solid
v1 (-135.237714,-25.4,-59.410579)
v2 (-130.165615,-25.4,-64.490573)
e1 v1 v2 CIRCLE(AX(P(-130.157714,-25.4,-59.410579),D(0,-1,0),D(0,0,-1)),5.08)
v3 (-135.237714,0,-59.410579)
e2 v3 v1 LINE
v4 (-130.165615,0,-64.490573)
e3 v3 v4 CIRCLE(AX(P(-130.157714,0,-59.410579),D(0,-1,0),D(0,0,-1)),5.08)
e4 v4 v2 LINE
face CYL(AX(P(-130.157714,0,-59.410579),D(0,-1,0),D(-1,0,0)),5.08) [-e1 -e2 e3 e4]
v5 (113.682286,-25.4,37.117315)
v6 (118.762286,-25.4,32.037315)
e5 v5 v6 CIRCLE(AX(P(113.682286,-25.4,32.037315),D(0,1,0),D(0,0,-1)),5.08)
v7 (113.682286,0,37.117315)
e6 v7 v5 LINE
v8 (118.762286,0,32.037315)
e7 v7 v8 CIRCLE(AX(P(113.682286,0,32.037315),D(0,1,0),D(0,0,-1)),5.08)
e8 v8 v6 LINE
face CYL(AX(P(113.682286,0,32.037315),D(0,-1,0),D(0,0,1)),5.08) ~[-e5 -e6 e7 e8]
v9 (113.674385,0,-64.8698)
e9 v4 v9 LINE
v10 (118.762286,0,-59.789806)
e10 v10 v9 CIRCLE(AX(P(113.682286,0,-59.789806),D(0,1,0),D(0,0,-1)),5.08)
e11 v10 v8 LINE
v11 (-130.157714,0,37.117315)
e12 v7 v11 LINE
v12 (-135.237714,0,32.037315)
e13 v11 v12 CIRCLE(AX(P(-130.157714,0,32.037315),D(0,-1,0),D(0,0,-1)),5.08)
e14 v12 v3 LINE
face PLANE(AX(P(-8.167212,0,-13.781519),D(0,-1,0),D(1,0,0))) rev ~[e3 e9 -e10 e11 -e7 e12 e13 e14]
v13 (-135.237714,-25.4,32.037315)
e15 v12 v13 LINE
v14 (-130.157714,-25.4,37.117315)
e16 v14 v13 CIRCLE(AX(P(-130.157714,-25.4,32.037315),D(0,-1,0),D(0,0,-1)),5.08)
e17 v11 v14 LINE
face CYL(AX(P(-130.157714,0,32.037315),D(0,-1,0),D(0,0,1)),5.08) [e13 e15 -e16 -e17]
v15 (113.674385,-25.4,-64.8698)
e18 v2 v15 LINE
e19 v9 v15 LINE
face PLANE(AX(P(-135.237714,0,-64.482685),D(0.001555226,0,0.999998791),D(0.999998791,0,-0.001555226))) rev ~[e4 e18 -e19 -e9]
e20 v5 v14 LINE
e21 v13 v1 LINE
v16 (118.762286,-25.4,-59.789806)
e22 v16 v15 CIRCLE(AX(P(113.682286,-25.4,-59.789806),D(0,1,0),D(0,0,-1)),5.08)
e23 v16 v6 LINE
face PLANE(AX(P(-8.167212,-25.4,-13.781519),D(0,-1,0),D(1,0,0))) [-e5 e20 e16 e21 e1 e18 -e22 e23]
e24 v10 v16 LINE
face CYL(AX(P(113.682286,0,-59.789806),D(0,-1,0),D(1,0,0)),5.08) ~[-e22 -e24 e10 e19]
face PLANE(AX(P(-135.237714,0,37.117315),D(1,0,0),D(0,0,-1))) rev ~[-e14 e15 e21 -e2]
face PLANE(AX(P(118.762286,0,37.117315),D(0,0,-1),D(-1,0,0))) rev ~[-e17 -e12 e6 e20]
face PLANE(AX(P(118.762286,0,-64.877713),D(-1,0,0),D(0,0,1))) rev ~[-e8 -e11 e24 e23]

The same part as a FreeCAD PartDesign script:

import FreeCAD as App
import Part
import Sketcher
from FreeCAD import Vector
Q = App.Units.Quantity


def edges_at(feature, points):
    """Names of the edges that pass closest to the given points."""
    edges = feature.Shape.Edges
    near = lambda p: min(range(len(edges)), key=lambda i: edges[i].distToShape(Part.Vertex(*p))[0])
    return sorted({f"Edge{near(p) + 1}" for p in points})

doc = App.newDocument("Part")
body = doc.addObject("PartDesign::Body", "Body")

sketch1 = body.newObject("Sketcher::SketchObject", "Sketch")
sketch1.AttachmentSupport = (doc.getObject("XZ_Plane"), [""])
sketch1.MapMode = "FlatFace"
sketch1.addGeometry(Part.LineSegment(Vector(119, 37, 0), Vector(-135, 37, 0)), False)
sketch1.addGeometry(Part.LineSegment(Vector(-135, 37, 0), Vector(-135, -64, 0)), False)
sketch1.addGeometry(Part.LineSegment(Vector(-135, -64, 0), Vector(119, -65, 0)), False)
sketch1.addGeometry(Part.LineSegment(Vector(119, -65, 0), Vector(119, 37, 0)), False)
sketch1.addConstraint(Sketcher.Constraint("Coincident", 0, 2, 1, 1))
sketch1.addConstraint(Sketcher.Constraint("Coincident", 1, 2, 2, 1))
sketch1.addConstraint(Sketcher.Constraint("Coincident", 2, 2, 3, 1))
sketch1.addConstraint(Sketcher.Constraint("Coincident", 3, 2, 0, 1))
sketch1.addConstraint(Sketcher.Constraint("Horizontal", 0))
sketch1.addConstraint(Sketcher.Constraint("Vertical", 1))
sketch1.addConstraint(Sketcher.Constraint("Vertical", 3))
sketch1.addConstraint(Sketcher.Constraint("DistanceX", 0, 2, 0, 1, Q("10 in")))
sketch1.addConstraint(Sketcher.Constraint("DistanceY", 1, 2, 1, 1, Q("4 in")))
sketch1.addConstraint(Sketcher.Constraint("DistanceY", 3, 1, 3, 2, 101.995028))
sketch1.addConstraint(Sketcher.Constraint("DistanceX", 0, 2, -1, 1, 135.237714))
sketch1.addConstraint(Sketcher.Constraint("DistanceY", -1, 1, 0, 2, 37.117315))
pad1 = body.newObject("PartDesign::Pad", "Pad")
pad1.Profile = sketch1
pad1.Length = Q("1 in")
doc.recompute()

fillet = body.newObject("PartDesign::Fillet", "Fillet")
fillet.Base = (pad1, edges_at(pad1, [(-135.238, -12.7, 37.117)]))
fillet.Radius = Q("0.2 in")
doc.recompute()

fillet2 = body.newObject("PartDesign::Fillet", "Fillet001")
fillet2.Base = (fillet, edges_at(fillet, [(118.762, -12.7, 37.117), (118.762, -12.7, -64.878), (-135.238, -12.7, -64.483)]))
fillet2.Radius = Q("0.2 in")

doc.recompute()
